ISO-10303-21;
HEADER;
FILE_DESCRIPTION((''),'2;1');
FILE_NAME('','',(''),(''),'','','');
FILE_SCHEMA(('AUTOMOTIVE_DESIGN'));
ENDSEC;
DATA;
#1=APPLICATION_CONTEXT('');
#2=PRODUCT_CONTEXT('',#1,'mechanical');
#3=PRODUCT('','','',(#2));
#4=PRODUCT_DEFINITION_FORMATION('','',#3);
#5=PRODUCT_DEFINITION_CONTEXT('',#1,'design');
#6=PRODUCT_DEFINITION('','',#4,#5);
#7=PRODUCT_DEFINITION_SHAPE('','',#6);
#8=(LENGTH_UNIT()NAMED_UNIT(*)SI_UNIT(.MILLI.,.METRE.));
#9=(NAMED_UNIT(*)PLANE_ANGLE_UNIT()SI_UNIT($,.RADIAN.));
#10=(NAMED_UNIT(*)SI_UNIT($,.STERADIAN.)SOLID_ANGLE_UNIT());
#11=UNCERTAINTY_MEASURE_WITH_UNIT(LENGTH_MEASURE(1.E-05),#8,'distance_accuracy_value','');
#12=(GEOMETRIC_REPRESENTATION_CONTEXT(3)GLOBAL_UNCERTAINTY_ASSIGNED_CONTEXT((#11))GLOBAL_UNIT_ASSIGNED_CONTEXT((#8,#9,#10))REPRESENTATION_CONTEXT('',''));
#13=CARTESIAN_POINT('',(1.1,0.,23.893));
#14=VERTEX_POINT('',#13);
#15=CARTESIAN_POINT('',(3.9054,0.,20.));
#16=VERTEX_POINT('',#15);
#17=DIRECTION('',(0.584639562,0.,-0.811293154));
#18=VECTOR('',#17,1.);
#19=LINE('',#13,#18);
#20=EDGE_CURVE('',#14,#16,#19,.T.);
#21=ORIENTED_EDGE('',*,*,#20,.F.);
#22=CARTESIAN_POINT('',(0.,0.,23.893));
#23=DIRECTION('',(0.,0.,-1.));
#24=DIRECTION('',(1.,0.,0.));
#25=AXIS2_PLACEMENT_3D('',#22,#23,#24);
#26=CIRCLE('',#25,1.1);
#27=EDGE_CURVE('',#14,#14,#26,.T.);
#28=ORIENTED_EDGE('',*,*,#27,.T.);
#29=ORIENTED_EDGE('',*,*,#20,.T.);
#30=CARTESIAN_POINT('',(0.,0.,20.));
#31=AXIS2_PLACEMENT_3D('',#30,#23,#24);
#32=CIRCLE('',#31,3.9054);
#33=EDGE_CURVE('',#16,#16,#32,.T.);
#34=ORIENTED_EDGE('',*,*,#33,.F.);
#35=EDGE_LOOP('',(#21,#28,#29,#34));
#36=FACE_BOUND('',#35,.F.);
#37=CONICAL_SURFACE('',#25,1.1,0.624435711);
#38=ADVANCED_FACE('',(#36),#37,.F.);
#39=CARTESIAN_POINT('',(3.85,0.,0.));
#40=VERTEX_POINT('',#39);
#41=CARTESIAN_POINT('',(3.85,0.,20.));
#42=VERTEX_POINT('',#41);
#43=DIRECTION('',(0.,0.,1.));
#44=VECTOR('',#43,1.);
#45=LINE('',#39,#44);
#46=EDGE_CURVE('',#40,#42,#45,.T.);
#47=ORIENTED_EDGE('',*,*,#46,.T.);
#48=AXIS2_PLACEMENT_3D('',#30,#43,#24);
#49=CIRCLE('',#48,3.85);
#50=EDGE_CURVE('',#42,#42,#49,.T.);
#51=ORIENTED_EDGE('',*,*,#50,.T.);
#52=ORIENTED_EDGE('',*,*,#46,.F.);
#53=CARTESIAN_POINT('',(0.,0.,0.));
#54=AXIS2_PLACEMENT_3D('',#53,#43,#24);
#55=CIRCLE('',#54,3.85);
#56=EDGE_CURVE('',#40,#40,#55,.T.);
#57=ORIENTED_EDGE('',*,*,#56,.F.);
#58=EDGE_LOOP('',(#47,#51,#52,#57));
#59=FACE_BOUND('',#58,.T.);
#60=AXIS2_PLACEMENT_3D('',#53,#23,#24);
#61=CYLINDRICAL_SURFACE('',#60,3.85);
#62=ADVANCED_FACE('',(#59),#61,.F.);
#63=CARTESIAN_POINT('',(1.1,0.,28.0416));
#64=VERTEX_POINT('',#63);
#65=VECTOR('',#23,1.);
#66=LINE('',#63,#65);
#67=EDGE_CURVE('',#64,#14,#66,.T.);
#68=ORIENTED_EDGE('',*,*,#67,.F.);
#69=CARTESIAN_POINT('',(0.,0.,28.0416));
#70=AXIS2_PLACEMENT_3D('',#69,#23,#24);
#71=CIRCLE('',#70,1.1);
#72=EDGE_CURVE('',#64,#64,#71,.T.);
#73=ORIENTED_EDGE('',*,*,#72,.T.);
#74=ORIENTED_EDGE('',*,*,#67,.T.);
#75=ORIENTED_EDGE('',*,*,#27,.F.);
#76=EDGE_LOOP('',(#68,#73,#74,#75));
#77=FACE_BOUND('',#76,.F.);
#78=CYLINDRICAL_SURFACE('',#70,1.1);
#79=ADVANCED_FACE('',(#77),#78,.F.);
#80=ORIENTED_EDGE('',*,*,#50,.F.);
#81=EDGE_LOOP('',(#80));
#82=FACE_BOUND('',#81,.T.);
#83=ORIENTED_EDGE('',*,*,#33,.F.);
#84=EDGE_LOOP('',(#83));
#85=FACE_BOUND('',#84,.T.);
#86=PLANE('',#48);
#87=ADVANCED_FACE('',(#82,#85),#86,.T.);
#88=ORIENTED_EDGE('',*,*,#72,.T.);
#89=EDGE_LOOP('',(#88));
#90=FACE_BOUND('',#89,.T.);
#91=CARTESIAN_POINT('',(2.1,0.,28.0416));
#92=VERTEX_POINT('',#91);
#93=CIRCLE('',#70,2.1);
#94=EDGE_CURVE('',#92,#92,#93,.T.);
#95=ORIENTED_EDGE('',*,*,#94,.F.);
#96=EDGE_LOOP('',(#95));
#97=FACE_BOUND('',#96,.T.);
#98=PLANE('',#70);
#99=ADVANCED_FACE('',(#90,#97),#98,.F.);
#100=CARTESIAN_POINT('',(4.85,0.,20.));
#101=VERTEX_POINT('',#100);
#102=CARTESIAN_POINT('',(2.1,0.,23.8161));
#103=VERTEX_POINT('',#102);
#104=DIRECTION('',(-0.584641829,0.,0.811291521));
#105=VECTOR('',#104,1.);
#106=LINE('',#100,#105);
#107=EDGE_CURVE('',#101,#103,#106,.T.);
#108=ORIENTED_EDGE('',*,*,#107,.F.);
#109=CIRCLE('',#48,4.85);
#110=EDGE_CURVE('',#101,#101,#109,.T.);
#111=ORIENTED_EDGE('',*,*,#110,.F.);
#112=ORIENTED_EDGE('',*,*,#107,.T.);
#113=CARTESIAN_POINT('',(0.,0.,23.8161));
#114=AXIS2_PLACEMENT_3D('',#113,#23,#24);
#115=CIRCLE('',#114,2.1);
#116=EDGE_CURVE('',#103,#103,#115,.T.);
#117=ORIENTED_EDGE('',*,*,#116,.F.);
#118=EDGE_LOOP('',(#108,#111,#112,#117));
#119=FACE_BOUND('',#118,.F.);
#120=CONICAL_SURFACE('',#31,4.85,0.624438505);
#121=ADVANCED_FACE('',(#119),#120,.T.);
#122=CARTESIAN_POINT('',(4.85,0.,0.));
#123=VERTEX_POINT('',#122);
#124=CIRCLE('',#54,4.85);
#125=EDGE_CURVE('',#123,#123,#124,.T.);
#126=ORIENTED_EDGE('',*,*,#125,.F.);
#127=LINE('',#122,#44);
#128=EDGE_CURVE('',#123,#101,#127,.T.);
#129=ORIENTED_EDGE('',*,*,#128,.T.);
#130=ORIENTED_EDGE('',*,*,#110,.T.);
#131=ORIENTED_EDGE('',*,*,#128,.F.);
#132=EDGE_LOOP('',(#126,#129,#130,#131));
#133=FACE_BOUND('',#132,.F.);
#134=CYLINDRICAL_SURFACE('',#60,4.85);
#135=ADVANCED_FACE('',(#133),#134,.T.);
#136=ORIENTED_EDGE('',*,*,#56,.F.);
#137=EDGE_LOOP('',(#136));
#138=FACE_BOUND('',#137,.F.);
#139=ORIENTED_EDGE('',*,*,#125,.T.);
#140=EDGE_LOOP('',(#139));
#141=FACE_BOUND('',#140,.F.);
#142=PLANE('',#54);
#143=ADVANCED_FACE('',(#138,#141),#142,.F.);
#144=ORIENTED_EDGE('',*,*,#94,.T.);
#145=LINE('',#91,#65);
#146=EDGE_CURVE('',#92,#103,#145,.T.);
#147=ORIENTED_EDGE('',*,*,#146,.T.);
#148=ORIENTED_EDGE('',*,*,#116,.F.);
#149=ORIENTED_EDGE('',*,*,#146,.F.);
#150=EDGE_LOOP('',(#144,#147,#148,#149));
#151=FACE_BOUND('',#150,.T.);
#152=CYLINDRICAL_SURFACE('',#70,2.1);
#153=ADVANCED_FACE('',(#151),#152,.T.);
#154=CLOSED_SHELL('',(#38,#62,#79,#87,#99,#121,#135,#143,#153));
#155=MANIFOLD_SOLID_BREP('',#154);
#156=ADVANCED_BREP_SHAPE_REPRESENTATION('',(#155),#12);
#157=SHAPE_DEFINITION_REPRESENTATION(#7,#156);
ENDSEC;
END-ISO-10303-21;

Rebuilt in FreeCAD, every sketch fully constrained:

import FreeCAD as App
import Part
import Sketcher
Q = App.Units.Quantity


def add_polygon(sketch, points):
    """Adds a closed chain of lines whose ends are joined by coincident constraints."""
    first, n = sketch.GeometryCount, len(points)
    for a, b in zip(points, points[1:] + points[:1]):
        sketch.addGeometry(Part.LineSegment(App.Vector(*a, 0), App.Vector(*b, 0)), False)
    for i in range(n):
        sketch.addConstraint(Sketcher.Constraint("Coincident", first + i, 2, first + (i + 1) % n, 1))

doc = App.newDocument("Part")
body = doc.addObject("PartDesign::Body", "Body")

# Sketch on XY plane
sketch1 = body.newObject("Sketcher::SketchObject", "Sketch")
sketch1.AttachmentSupport = (doc.getObject("XY_Plane"), [""])
sketch1.MapMode = "FlatFace"
sketch1.addGeometry([
    Part.Circle(App.Vector(0, 0, 0), App.Vector(0, 0, 1), 4.8),
    Part.Circle(App.Vector(0, 0, 0), App.Vector(0, 0, 1), 3.9),
], False)
sketch1.addConstraint([
    Sketcher.Constraint("Coincident", 0, 3, -1, 1),
    Sketcher.Constraint("Coincident", 1, 3, -1, 1),
    Sketcher.Constraint("Diameter", 0, Q("9.7 mm")),
    Sketcher.Constraint("Diameter", 1, Q("7.7 mm")),
])
pad1 = body.newObject("PartDesign::Pad", "Pad")
pad1.Profile = sketch1
pad1.Length = 20

# Sketch on XZ plane
sketch2 = body.newObject("Sketcher::SketchObject", "Sketch001")
sketch2.AttachmentSupport = (doc.getObject("XZ_Plane"), [""])
sketch2.MapMode = "FlatFace"
add_polygon(sketch2, [(2.1, 28), (1.1, 28), (1.1, 23.9), (3.9, 20), (4.8, 20), (2.1, 23.8)])  # lines 0-5
sketch2.addConstraint([
    Sketcher.Constraint("Horizontal", 0),
    Sketcher.Constraint("Vertical", 1),
    Sketcher.Constraint("Horizontal", 3),
    Sketcher.Constraint("Vertical", 5),
    Sketcher.Constraint("Parallel", 2, 4),
    Sketcher.Constraint("DistanceX", 0, 2, 0, 1, Q("1 mm")),
    Sketcher.Constraint("DistanceY", -1, 1, 2, 2, Q("20 mm")),
    Sketcher.Constraint("DistanceX", -1, 1, 0, 2, Q("1.1 mm")),
    Sketcher.Constraint("DistanceX", -1, 1, 3, 2, Q("4.85 mm")),
    Sketcher.Constraint("DistanceX", 3, 1, 3, 2, Q("0.9446 mm")),
    Sketcher.Constraint("DistanceY", 1, 2, 1, 1, Q("4.1486 mm")),
    Sketcher.Constraint("DistanceY", 5, 1, 5, 2, Q("4.2255 mm")),
])
revolution = body.newObject("PartDesign::Revolution", "Revolution")
revolution.Profile = sketch2
revolution.ReferenceAxis = (sketch2, ["V_Axis"])
revolution.Angle = 360

doc.recompute()
